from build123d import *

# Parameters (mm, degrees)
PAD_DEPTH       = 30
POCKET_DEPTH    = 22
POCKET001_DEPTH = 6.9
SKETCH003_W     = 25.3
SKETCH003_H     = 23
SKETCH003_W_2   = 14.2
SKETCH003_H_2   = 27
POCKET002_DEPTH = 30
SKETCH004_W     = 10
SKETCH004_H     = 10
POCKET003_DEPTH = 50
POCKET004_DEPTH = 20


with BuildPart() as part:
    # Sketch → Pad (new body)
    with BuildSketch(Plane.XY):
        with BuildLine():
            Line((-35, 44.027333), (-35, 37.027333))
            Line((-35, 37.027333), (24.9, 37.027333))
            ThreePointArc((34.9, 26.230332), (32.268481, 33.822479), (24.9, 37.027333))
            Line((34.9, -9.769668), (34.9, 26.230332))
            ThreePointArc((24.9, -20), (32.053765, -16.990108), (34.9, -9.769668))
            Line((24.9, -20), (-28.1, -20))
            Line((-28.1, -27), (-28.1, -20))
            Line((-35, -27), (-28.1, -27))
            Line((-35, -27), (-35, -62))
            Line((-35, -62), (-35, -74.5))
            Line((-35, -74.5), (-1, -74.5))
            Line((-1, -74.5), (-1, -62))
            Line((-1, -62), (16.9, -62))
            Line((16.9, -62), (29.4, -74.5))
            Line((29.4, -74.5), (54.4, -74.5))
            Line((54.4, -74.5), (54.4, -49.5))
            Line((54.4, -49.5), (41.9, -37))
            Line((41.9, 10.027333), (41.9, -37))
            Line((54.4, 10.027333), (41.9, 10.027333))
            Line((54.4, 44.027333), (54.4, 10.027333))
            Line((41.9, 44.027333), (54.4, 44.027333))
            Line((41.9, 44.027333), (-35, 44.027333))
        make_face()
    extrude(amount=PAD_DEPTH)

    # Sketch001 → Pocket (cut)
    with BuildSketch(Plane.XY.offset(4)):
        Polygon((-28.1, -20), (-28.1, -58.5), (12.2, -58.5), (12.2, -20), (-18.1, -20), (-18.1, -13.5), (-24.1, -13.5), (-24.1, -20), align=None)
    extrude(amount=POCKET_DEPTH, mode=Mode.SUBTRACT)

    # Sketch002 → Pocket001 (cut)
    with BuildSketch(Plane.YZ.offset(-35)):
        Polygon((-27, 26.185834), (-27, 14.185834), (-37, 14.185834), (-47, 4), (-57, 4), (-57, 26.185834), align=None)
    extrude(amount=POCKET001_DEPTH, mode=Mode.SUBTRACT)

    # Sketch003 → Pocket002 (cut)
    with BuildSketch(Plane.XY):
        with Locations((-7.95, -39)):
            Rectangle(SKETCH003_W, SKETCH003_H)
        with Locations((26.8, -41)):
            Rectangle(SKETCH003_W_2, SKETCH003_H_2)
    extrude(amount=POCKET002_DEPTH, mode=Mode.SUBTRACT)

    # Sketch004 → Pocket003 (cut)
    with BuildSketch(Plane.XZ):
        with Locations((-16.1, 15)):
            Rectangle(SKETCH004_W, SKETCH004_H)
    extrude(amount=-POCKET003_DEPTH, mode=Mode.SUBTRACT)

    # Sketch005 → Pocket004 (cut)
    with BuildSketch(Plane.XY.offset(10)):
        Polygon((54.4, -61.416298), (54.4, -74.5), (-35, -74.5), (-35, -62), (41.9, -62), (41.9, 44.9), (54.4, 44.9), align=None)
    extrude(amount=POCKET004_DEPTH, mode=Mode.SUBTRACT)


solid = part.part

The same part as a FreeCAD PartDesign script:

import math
import FreeCAD as App
import Part
import Sketcher
from FreeCAD import Vector


def add_polygon(sketch, points):
    """Adds a closed chain of lines whose ends are joined by coincident constraints."""
    first, n = sketch.GeometryCount, len(points)
    for a, b in zip(points, points[1:] + points[:1]):
        sketch.addGeometry(Part.LineSegment(App.Vector(*a, 0), App.Vector(*b, 0)), False)
    for i in range(n):
        sketch.addConstraint(Sketcher.Constraint("Coincident", first + i, 2, first + (i + 1) % n, 1))

doc = App.newDocument("Part")
body = doc.addObject("PartDesign::Body", "Body")

sketch1 = doc.addObject("Sketcher::SketchObject", "Sketch")
body.addObject(sketch1)
sketch1.AttachmentSupport = (doc.XY_Plane, [""])
sketch1.MapMode = "FlatFace"
sketch1.addGeometry([
    Part.LineSegment(Vector(-35, 44, 0), Vector(-35, 37, 0)),
    Part.LineSegment(Vector(-35, 37, 0), Vector(25, 37, 0)),
    Part.ArcOfCircle(Part.Circle(Vector(25, 27, 0), Vector(0, 0, 1), 10), math.radians(-5), math.radians(90)),
    Part.LineSegment(Vector(35, 26, 0), Vector(35, -10, 0)),
    Part.ArcOfCircle(Part.Circle(Vector(25, -10, 0), Vector(0, 0, 1), 10), math.radians(-90), math.radians(1)),
    Part.LineSegment(Vector(25, -20, 0), Vector(-28, -20, 0)),
    Part.LineSegment(Vector(-28, -20, 0), Vector(-28, -27, 0)),
    Part.LineSegment(Vector(-28, -27, 0), Vector(-35, -27, 0)),
    Part.LineSegment(Vector(-35, -27, 0), Vector(-35, -74, 0)),
    Part.LineSegment(Vector(-35, -74, 0), Vector(-1, -74, 0)),
    Part.LineSegment(Vector(-1, -74, 0), Vector(-1, -62, 0)),
    Part.LineSegment(Vector(-1, -62, 0), Vector(17, -62, 0)),
    Part.LineSegment(Vector(17, -62, 0), Vector(29, -74, 0)),
    Part.LineSegment(Vector(29, -74, 0), Vector(54, -74, 0)),
    Part.LineSegment(Vector(54, -74, 0), Vector(54, -50, 0)),
    Part.LineSegment(Vector(54, -50, 0), Vector(42, -37, 0)),
    Part.LineSegment(Vector(42, -37, 0), Vector(42, 10, 0)),
    Part.LineSegment(Vector(42, 10, 0), Vector(54, 10, 0)),
    Part.LineSegment(Vector(54, 10, 0), Vector(54, 44, 0)),
    Part.LineSegment(Vector(54, 44, 0), Vector(-35, 44, 0)),
], False)
sketch1.addConstraint([
    Sketcher.Constraint("Coincident", 0, 2, 1, 1),
    Sketcher.Constraint("Coincident", 1, 2, 2, 2),
    Sketcher.Constraint("Coincident", 2, 1, 3, 1),
    Sketcher.Constraint("Coincident", 3, 2, 4, 2),
    Sketcher.Constraint("Coincident", 4, 1, 5, 1),
    Sketcher.Constraint("Coincident", 5, 2, 6, 1),
    Sketcher.Constraint("Coincident", 6, 2, 7, 1),
    Sketcher.Constraint("Coincident", 7, 2, 8, 1),
    Sketcher.Constraint("Coincident", 8, 2, 9, 1),
    Sketcher.Constraint("Coincident", 9, 2, 10, 1),
    Sketcher.Constraint("Coincident", 10, 2, 11, 1),
    Sketcher.Constraint("Coincident", 11, 2, 12, 1),
    Sketcher.Constraint("Coincident", 12, 2, 13, 1),
    Sketcher.Constraint("Coincident", 13, 2, 14, 1),
    Sketcher.Constraint("Coincident", 14, 2, 15, 1),
    Sketcher.Constraint("Coincident", 15, 2, 16, 1),
    Sketcher.Constraint("Coincident", 16, 2, 17, 1),
    Sketcher.Constraint("Coincident", 17, 2, 18, 1),
    Sketcher.Constraint("Coincident", 18, 2, 19, 1),
    Sketcher.Constraint("Coincident", 19, 2, 0, 1),
    Sketcher.Constraint("Vertical", 0),
    Sketcher.Constraint("Horizontal", 1),
    Sketcher.Constraint("Vertical", 3),
    Sketcher.Constraint("Horizontal", 5),
    Sketcher.Constraint("Vertical", 6),
    Sketcher.Constraint("Horizontal", 7),
    Sketcher.Constraint("Vertical", 8),
    Sketcher.Constraint("Horizontal", 9),
    Sketcher.Constraint("Vertical", 10),
    Sketcher.Constraint("Horizontal", 11),
    Sketcher.Constraint("Horizontal", 13),
    Sketcher.Constraint("Vertical", 14),
    Sketcher.Constraint("Vertical", 16),
    Sketcher.Constraint("Horizontal", 17),
    Sketcher.Constraint("Vertical", 18),
    Sketcher.Constraint("Horizontal", 19),
    Sketcher.Constraint("Parallel", 12, 15),
    Sketcher.Constraint("Horizontal", 9, 2, 12, 2),
    Sketcher.Constraint("Vertical", 1, 2, 4, 1),
    Sketcher.Constraint("Vertical", 0, 2, 7, 2),
    Sketcher.Constraint("Vertical", 14, 2, 17, 2),
    Sketcher.Constraint("Equal", 0, 6),
    Sketcher.Constraint("Equal", 17, 10),
    Sketcher.Constraint("Equal", 13, 14),
    Sketcher.Constraint("Equal", 9, 18),
    Sketcher.Constraint("Equal", 12, 15),
    Sketcher.Constraint("Radius", 2, 10.000001),
    Sketcher.Constraint("Radius", 4, 9.999999),
    Sketcher.Constraint("DistanceX", 5, 2, 5, 1, 53.0),
    Sketcher.Constraint("DistanceX", 9, 1, 9, 2, 34.0),
    Sketcher.Constraint("DistanceX", 13, 1, 13, 2, 25.0),
    Sketcher.Constraint("DistanceY", 0, 2, 0, 1, 7.0),
    Sketcher.Constraint("DistanceY", 3, 2, 3, 1, 36.0),
    Sketcher.Constraint("DistanceX", 1, 1, 1, 2, 59.9),
    Sketcher.Constraint("DistanceX", 11, 1, 11, 2, 17.9),
    Sketcher.Constraint("DistanceX", 17, 1, 17, 2, 12.5),
    Sketcher.Constraint("DistanceY", 8, 2, 8, 1, 47.5),
    Sketcher.Constraint("DistanceY", 4, 3, -1, 1, 10.000001),
    Sketcher.Constraint("DistanceX", 0, 2, -1, 1, 35.0),
    Sketcher.Constraint("DistanceX", 1, 2, 2, 1, 10.0),
    Sketcher.Constraint("DistanceY", 2, 1, 1, 2, 10.797001),
    Sketcher.Constraint("DistanceY", 16, 1, 16, 2, 47.027333),
])
pad1 = doc.addObject("PartDesign::Pad", "Pad")
body.addObject(pad1)
pad1.Profile = sketch1
pad1.Length = 30

sketch2 = doc.addObject("Sketcher::SketchObject", "Sketch001")
body.addObject(sketch2)
sketch2.AttachmentSupport = (doc.XY_Plane, [""])
sketch2.MapMode = "FlatFace"
sketch2.AttachmentOffset = App.Placement(Vector(0, 0, 4), App.Rotation())
add_polygon(sketch2, [(-28.1, -20), (-28.1, -58.5), (12.2, -58.5), (12.2, -20), (-18.1, -20), (-18.1, -13.5), (-24.1, -13.5), (-24.1, -20)])
sketch2.addConstraint([
    Sketcher.Constraint("Vertical", 0),
    Sketcher.Constraint("Horizontal", 1),
    Sketcher.Constraint("Vertical", 2),
    Sketcher.Constraint("Horizontal", 3),
    Sketcher.Constraint("Vertical", 4),
    Sketcher.Constraint("Horizontal", 5),
    Sketcher.Constraint("Vertical", 6),
    Sketcher.Constraint("Horizontal", 7),
    Sketcher.Constraint("Horizontal", 3, 2, 6, 2),
    Sketcher.Constraint("DistanceX", 5, 2, 5, 1, 6.0),
    Sketcher.Constraint("DistanceX", 7, 2, 7, 1, 4.0),
    Sketcher.Constraint("DistanceX", 1, 1, 1, 2, 40.3),
    Sketcher.Constraint("DistanceY", 0, 2, 0, 1, 38.5),
    Sketcher.Constraint("DistanceY", 4, 1, 4, 2, 6.5),
    Sketcher.Constraint("DistanceY", 2, 2, -1, 1, 20.0),
    Sketcher.Constraint("DistanceX", 0, 2, -1, 1, 28.1),
])
pocket1 = doc.addObject("PartDesign::Pocket", "Pocket")
body.addObject(pocket1)
pocket1.Profile = sketch2
pocket1.Length = 22
pocket1.Reversed = True

sketch3 = doc.addObject("Sketcher::SketchObject", "Sketch002")
body.addObject(sketch3)
sketch3.AttachmentSupport = (doc.YZ_Plane, [""])
sketch3.MapMode = "FlatFace"
sketch3.AttachmentOffset = App.Placement(Vector(0, 0, -35), App.Rotation())
add_polygon(sketch3, [(-27, 14), (-27, 26), (-57, 26), (-57, 4), (-47, 4), (-37, 14)])
sketch3.addConstraint([
    Sketcher.Constraint("Vertical", 0),
    Sketcher.Constraint("Horizontal", 1),
    Sketcher.Constraint("Vertical", 2),
    Sketcher.Constraint("Horizontal", 3),
    Sketcher.Constraint("Horizontal", 5),
    Sketcher.Constraint("Equal", 3, 5),
    Sketcher.Constraint("DistanceX", 1, 2, 1, 1, 30.0),
    Sketcher.Constraint("DistanceX", 3, 1, 3, 2, 10.0),
    Sketcher.Constraint("DistanceY", 0, 1, 0, 2, 12.0),
    Sketcher.Constraint("DistanceX", 0, 2, -1, 1, 27.0),
    Sketcher.Constraint("DistanceY", -1, 1, 2, 2, 4.0),
    Sketcher.Constraint("DistanceY", 2, 2, 2, 1, 22.185834),
])
pocket2 = doc.addObject("PartDesign::Pocket", "Pocket001")
body.addObject(pocket2)
pocket2.Profile = sketch3
pocket2.Length = 6.9
pocket2.Reversed = True

sketch4 = doc.addObject("Sketcher::SketchObject", "Sketch003")
body.addObject(sketch4)
sketch4.AttachmentSupport = (doc.XY_Plane, [""])
sketch4.MapMode = "FlatFace"
add_polygon(sketch4, [(-21, -28), (-21, -50), (5, -50), (5, -28)])
add_polygon(sketch4, [(20, -28), (20, -54), (34, -54), (34, -28)])
sketch4.addConstraint([
    Sketcher.Constraint("Vertical", 0),
    Sketcher.Constraint("Horizontal", 1),
    Sketcher.Constraint("Vertical", 2),
    Sketcher.Constraint("Horizontal", 3),
    Sketcher.Constraint("Vertical", 4),
    Sketcher.Constraint("Horizontal", 5),
    Sketcher.Constraint("Vertical", 6),
    Sketcher.Constraint("Horizontal", 7),
    Sketcher.Constraint("Horizontal", 3, 2, 6, 2),
    Sketcher.Constraint("DistanceY", 0, 2, 0, 1, 23.0),
    Sketcher.Constraint("DistanceY", 4, 2, 4, 1, 27.0),
    Sketcher.Constraint("DistanceX", 1, 1, 1, 2, 25.3),
    Sketcher.Constraint("DistanceX", 5, 1, 5, 2, 14.2),
    Sketcher.Constraint("DistanceX", 1, 2, 4, 2, 15.0),
    Sketcher.Constraint("DistanceX", 0, 2, -1, 1, 20.6),
    Sketcher.Constraint("DistanceY", 0, 2, -1, 1, 50.5),
])
pocket3 = doc.addObject("PartDesign::Pocket", "Pocket002")
body.addObject(pocket3)
pocket3.Profile = sketch4
pocket3.Length = 30
pocket3.Reversed = True

sketch5 = doc.addObject("Sketcher::SketchObject", "Sketch004")
body.addObject(sketch5)
sketch5.AttachmentSupport = (doc.XZ_Plane, [""])
sketch5.MapMode = "FlatFace"
add_polygon(sketch5, [(-21, 20), (-21, 10), (-11, 10), (-11, 20)])
sketch5.addConstraint([
    Sketcher.Constraint("Vertical", 0),
    Sketcher.Constraint("Horizontal", 1),
    Sketcher.Constraint("Vertical", 2),
    Sketcher.Constraint("Horizontal", 3),
    Sketcher.Constraint("Equal", 3, 0),
    Sketcher.Constraint("DistanceX", 1, 1, 1, 2, 10.0),
    Sketcher.Constraint("DistanceY", -1, 1, 0, 2, 10.0),
    Sketcher.Constraint("DistanceX", 0, 2, -1, 1, 21.1),
])
pocket4 = doc.addObject("PartDesign::Pocket", "Pocket003")
body.addObject(pocket4)
pocket4.Profile = sketch5
pocket4.Length = 50

sketch6 = doc.addObject("Sketcher::SketchObject", "Sketch005")
body.addObject(sketch6)
sketch6.AttachmentSupport = (doc.XY_Plane, [""])
sketch6.MapMode = "FlatFace"
sketch6.AttachmentOffset = App.Placement(Vector(0, 0, 10), App.Rotation())
add_polygon(sketch6, [(54, -74), (54, 45), (42, 45), (42, -62), (-35, -62), (-35, -74)])
sketch6.addConstraint([
    Sketcher.Constraint("Vertical", 0),
    Sketcher.Constraint("Horizontal", 1),
    Sketcher.Constraint("Vertical", 2),
    Sketcher.Constraint("Horizontal", 3),
    Sketcher.Constraint("Vertical", 4),
    Sketcher.Constraint("Horizontal", 5),
    Sketcher.Constraint("Equal", 1, 4),
    Sketcher.Constraint("DistanceX", 1, 2, 1, 1, 12.5),
    Sketcher.Constraint("DistanceX", 3, 2, 3, 1, 76.9),
    Sketcher.Constraint("DistanceY", 0, 1, 0, 2, 119.4),
    Sketcher.Constraint("DistanceY", 2, 2, -1, 1, 62.0),
    Sketcher.Constraint("DistanceX", 3, 2, -1, 1, 35.0),
])
pocket5 = doc.addObject("PartDesign::Pocket", "Pocket004")
body.addObject(pocket5)
pocket5.Profile = sketch6
pocket5.Length = 20
pocket5.Reversed = True

doc.recompute()
